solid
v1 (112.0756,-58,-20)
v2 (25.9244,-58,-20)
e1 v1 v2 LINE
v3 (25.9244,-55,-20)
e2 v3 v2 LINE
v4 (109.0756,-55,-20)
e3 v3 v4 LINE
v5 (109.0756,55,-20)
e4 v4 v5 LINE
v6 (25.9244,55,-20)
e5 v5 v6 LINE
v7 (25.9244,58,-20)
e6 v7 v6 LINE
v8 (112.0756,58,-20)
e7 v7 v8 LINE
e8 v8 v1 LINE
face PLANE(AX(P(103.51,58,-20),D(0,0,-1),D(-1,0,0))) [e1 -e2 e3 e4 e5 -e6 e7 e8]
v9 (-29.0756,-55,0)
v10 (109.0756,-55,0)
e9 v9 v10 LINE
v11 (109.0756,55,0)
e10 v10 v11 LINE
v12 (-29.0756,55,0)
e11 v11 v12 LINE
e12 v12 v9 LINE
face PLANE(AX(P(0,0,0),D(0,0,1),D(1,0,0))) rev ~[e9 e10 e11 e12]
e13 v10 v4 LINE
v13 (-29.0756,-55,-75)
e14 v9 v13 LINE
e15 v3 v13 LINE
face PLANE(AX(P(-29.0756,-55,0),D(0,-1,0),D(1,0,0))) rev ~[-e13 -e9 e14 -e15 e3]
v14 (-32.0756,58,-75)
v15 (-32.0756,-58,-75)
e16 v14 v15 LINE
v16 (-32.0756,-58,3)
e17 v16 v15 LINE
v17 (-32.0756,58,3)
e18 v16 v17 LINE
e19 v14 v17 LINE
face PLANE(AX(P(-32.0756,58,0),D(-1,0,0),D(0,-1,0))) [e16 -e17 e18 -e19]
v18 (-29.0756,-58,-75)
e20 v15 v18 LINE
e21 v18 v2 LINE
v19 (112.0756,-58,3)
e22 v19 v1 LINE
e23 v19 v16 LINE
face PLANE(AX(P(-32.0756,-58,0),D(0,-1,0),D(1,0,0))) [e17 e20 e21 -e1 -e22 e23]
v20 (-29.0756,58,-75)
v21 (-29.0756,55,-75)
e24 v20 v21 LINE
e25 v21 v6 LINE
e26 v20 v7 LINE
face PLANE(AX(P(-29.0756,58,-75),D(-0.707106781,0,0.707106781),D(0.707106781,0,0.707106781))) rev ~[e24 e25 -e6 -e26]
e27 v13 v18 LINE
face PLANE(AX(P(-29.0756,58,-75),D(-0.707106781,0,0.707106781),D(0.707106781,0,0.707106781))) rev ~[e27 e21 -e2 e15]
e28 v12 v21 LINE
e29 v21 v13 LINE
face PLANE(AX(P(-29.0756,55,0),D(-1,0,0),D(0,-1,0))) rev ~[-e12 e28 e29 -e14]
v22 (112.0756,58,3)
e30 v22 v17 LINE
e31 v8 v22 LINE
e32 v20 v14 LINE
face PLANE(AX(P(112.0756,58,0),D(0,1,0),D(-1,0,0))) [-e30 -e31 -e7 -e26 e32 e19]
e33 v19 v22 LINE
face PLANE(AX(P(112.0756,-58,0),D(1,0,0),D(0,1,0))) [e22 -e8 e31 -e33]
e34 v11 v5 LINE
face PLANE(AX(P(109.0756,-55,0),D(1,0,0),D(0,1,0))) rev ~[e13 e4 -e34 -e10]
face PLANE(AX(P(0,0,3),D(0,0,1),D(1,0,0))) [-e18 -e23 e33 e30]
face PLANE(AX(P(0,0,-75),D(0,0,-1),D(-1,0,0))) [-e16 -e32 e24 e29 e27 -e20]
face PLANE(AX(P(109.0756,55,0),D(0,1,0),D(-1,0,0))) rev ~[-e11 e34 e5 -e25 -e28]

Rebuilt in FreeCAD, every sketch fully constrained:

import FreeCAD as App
import Part
import Sketcher
from FreeCAD import Vector
Q = App.Units.Quantity


def add_polygon(sketch, points):
    """Adds a closed chain of lines whose ends are joined by coincident constraints."""
    first, n = sketch.GeometryCount, len(points)
    for a, b in zip(points, points[1:] + points[:1]):
        sketch.addGeometry(Part.LineSegment(App.Vector(*a, 0), App.Vector(*b, 0)), False)
    for i in range(n):
        sketch.addConstraint(Sketcher.Constraint("Coincident", first + i, 2, first + (i + 1) % n, 1))

doc = App.newDocument("Part")
body = doc.addObject("PartDesign::Body", "Body")

# Sketch on XY plane
sketch1 = body.newObject("Sketcher::SketchObject", "Sketch")
sketch1.AttachmentSupport = (doc.getObject("XY_Plane"), [""])
sketch1.MapMode = "FlatFace"
add_polygon(sketch1, [(112, -58), (112, 58), (-32, 58), (-32, -58)])  # lines 0-3
sketch1.addConstraint(Sketcher.Constraint("Vertical", 0))
sketch1.addConstraint(Sketcher.Constraint("Horizontal", 1))
sketch1.addConstraint(Sketcher.Constraint("Vertical", 2))
sketch1.addConstraint(Sketcher.Constraint("Horizontal", 3))
sketch1.addConstraint(Sketcher.Constraint("DistanceY", 0, 1, 0, 2, 116.0))
sketch1.addConstraint(Sketcher.Constraint("DistanceY", -1, 1, 0, 2, 58.0))
sketch1.addConstraint(Sketcher.Constraint("DistanceX", 1, 2, 1, 1, 144.1512))
sketch1.addConstraint(Sketcher.Constraint("DistanceX", -1, 1, 0, 2, 112.0756))
pad1 = body.newObject("PartDesign::Pad", "Pad")
pad1.Profile = sketch1
pad1.Length = 3

# Sketch on XY plane
sketch2 = body.newObject("Sketcher::SketchObject", "Sketch001")
sketch2.AttachmentSupport = (doc.getObject("XY_Plane"), [""])
sketch2.MapMode = "FlatFace"
add_polygon(sketch2, [(112, 58), (112, -58), (-32, -58), (-32, 58)])  # lines 0-3
add_polygon(sketch2, [(-29, -55), (109, -55), (109, 55), (-29, 55)])  # lines 4-7
sketch2.addConstraint(Sketcher.Constraint("Vertical", 0))
sketch2.addConstraint(Sketcher.Constraint("Horizontal", 1))
sketch2.addConstraint(Sketcher.Constraint("Vertical", 2))
sketch2.addConstraint(Sketcher.Constraint("Horizontal", 3))
sketch2.addConstraint(Sketcher.Constraint("Horizontal", 4))
sketch2.addConstraint(Sketcher.Constraint("Vertical", 5))
sketch2.addConstraint(Sketcher.Constraint("Horizontal", 6))
sketch2.addConstraint(Sketcher.Constraint("Vertical", 7))
sketch2.addConstraint(Sketcher.Constraint("DistanceX", 4, 2, 0, 2, 3.0))
sketch2.addConstraint(Sketcher.Constraint("DistanceY", 0, 2, 4, 2, 3.0))
sketch2.addConstraint(Sketcher.Constraint("DistanceY", 5, 2, 3, 2, 3.0))
sketch2.addConstraint(Sketcher.Constraint("DistanceX", 2, 2, 6, 2, 3.0))
sketch2.addConstraint(Sketcher.Constraint("DistanceY", 0, 2, 0, 1, 116.0))
sketch2.addConstraint(Sketcher.Constraint("DistanceY", 0, 2, -1, 1, 58.0))
sketch2.addConstraint(Sketcher.Constraint("DistanceX", 1, 2, 1, 1, 144.1512))
sketch2.addConstraint(Sketcher.Constraint("DistanceX", -1, 1, 0, 2, 112.0756))
pad2 = body.newObject("PartDesign::Pad", "Pad001")
pad2.Profile = sketch2
pad2.Length = 75
pad2.Reversed = True

# Sketch on XZ plane
sketch3 = body.newObject("Sketcher::SketchObject", "Sketch002")
sketch3.AttachmentSupport = (doc.getObject("XZ_Plane"), [""])
sketch3.MapMode = "FlatFace"
sketch3.AttachmentOffset = App.Placement(Vector(0, 0, -58), App.Rotation())
add_polygon(sketch3, [(-29, -75), (26, -20), (112, -20), (112, -75)])  # lines 0-3
sketch3.addConstraint(Sketcher.Constraint("Horizontal", 1))
sketch3.addConstraint(Sketcher.Constraint("Vertical", 2))
sketch3.addConstraint(Sketcher.Constraint("Horizontal", 3))
sketch3.addConstraint(Sketcher.Constraint("Angle", 0, Q("45 deg")))
sketch3.addConstraint(Sketcher.Constraint("DistanceY", 2, 2, 2, 1, 55.0))
sketch3.addConstraint(Sketcher.Constraint("DistanceY", 0, 2, -1, 1, 20.0))
sketch3.addConstraint(Sketcher.Constraint("DistanceX", 1, 1, 1, 2, 86.1512))
sketch3.addConstraint(Sketcher.Constraint("DistanceX", -1, 1, 0, 2, 25.9244))
pocket1 = body.newObject("PartDesign::Pocket", "Pocket")
pocket1.Profile = sketch3
pocket1.Length = 116
pocket1.Reversed = True

doc.recompute()
